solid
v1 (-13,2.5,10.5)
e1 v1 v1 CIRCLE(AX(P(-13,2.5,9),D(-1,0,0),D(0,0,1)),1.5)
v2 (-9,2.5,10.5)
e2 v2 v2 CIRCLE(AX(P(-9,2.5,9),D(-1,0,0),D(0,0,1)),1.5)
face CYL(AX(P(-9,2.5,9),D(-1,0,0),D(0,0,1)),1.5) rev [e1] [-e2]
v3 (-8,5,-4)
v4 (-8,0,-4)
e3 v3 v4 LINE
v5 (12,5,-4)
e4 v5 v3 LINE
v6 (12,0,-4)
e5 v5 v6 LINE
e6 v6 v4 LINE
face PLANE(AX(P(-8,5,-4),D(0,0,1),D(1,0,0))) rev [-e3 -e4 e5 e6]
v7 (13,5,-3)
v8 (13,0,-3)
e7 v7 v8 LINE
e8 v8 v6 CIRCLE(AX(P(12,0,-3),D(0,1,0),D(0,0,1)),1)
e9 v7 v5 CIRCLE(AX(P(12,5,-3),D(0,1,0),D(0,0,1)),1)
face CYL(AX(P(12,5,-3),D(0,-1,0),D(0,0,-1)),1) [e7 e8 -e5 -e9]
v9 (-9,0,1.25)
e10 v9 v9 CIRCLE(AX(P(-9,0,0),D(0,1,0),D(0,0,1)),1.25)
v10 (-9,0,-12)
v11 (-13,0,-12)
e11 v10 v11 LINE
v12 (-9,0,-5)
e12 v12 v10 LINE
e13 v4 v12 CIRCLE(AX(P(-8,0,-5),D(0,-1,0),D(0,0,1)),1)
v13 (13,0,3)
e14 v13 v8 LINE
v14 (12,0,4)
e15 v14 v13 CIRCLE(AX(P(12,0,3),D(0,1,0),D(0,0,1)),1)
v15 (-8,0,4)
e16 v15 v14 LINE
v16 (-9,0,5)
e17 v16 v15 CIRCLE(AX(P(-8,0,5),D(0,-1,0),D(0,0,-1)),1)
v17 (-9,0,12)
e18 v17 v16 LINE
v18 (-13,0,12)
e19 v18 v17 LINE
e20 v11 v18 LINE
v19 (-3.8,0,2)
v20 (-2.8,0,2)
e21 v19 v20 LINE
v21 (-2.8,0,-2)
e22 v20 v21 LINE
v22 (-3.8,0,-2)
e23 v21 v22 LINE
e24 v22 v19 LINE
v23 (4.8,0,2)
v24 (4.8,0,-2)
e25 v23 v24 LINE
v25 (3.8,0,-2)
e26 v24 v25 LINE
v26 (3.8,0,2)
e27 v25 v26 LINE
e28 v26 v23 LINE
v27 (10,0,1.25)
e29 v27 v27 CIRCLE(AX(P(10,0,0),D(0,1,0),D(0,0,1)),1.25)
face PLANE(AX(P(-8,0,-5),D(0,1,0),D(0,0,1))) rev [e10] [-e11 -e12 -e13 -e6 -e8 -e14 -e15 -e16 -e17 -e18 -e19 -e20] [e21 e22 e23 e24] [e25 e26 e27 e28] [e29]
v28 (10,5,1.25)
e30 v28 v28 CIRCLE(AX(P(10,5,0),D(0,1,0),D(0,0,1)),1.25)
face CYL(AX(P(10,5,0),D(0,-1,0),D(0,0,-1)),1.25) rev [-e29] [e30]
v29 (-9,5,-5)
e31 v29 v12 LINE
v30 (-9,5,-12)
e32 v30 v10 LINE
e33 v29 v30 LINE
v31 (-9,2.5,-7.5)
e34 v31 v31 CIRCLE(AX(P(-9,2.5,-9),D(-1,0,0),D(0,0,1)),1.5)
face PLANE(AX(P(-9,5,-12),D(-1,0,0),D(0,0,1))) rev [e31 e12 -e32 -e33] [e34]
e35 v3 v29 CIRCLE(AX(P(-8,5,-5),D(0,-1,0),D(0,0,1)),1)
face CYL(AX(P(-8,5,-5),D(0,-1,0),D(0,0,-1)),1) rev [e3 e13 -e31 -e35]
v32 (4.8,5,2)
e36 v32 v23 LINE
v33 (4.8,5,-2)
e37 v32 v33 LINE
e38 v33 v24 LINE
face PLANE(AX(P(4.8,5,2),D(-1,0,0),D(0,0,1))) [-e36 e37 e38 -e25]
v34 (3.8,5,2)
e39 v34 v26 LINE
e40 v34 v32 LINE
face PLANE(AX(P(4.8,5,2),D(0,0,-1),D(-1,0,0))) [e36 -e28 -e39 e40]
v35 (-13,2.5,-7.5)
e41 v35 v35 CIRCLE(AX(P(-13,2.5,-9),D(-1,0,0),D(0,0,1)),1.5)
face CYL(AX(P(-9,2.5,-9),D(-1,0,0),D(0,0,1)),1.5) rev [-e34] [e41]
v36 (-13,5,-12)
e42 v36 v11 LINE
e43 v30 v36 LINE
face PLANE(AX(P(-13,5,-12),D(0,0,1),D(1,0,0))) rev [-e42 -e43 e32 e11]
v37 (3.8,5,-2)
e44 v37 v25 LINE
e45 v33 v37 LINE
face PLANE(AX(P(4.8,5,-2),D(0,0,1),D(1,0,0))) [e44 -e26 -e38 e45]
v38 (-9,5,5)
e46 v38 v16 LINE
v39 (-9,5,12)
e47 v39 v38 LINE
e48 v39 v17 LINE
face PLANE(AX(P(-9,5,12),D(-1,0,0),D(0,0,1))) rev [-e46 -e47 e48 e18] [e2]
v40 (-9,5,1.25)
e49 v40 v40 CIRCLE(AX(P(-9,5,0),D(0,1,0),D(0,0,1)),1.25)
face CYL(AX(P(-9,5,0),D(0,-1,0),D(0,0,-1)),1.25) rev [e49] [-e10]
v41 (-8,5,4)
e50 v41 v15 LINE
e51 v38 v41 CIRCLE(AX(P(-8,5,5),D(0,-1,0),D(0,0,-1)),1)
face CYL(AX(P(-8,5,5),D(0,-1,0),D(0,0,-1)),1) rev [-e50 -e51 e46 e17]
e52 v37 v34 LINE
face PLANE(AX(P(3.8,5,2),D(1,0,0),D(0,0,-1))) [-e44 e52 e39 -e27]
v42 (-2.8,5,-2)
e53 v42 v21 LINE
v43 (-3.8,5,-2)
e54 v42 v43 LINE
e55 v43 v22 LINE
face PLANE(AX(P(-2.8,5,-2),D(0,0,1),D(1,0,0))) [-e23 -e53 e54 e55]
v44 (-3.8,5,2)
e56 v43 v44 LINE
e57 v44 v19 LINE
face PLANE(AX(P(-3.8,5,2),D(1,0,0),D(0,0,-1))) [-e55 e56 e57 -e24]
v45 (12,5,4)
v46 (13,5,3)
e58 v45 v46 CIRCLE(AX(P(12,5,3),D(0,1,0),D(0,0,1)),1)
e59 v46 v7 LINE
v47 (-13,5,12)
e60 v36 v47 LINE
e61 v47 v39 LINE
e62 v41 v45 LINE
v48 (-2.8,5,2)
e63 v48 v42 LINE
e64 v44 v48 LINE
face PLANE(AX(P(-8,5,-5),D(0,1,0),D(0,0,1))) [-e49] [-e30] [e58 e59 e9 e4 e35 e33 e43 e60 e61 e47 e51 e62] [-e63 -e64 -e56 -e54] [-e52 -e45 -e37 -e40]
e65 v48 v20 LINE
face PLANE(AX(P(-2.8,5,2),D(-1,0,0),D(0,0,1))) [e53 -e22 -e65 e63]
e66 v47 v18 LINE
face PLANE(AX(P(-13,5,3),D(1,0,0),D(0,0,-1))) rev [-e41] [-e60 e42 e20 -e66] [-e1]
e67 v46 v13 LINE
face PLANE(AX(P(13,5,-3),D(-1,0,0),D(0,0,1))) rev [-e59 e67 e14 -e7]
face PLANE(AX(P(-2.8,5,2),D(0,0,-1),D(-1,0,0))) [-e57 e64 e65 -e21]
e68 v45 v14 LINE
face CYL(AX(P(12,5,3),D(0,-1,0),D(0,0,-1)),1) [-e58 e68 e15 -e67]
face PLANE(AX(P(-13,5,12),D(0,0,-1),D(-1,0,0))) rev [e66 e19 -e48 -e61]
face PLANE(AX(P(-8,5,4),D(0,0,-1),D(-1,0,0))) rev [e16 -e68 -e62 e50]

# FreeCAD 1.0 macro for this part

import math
import FreeCAD as App
import Part
import Sketcher

V = App.Vector

doc = App.newDocument("Part")
body = doc.addObject("PartDesign::Body", "Body")

sketch1 = body.newObject("Sketcher::SketchObject", "Sketch")
sketch1.AttachmentSupport = (doc.getObject("XZ_Plane"), [""])
sketch1.MapMode = "FlatFace"
sketch1.addGeometry([
    Part.LineSegment(V(-13, 12, 0), V(-9, 12, 0)),
    Part.LineSegment(V(-9, 12, 0), V(-9, 5, 0)),
    Part.ArcOfCircle(Part.Circle(V(-8, 5, 0), V(0, 0, 1), 1), math.radians(-180), math.radians(-90)),
    Part.LineSegment(V(-8, 4, 0), V(12, 4, 0)),
    Part.ArcOfCircle(Part.Circle(V(12, 3, 0), V(0, 0, 1), 1), math.radians(0), math.radians(90)),
    Part.LineSegment(V(13, 3, 0), V(13, -3, 0)),
    Part.ArcOfCircle(Part.Circle(V(12, -3, 0), V(0, 0, 1), 1), math.radians(-90), math.radians(0)),
    Part.LineSegment(V(12, -4, 0), V(-8, -4, 0)),
    Part.ArcOfCircle(Part.Circle(V(-8, -5, 0), V(0, 0, 1), 1), math.radians(90), math.radians(180)),
    Part.LineSegment(V(-9, -5, 0), V(-9, -12, 0)),
    Part.LineSegment(V(-9, -12, 0), V(-13, -12, 0)),
    Part.LineSegment(V(-13, -12, 0), V(-13, 12, 0)),
    Part.Circle(V(-9, 0, 0), V(0, 0, 1), 1.2),
    Part.LineSegment(V(-2.8, 2, 0), V(-3.8, 2, 0)),
    Part.LineSegment(V(-3.8, 2, 0), V(-3.8, -2, 0)),
    Part.LineSegment(V(-3.8, -2, 0), V(-2.8, -2, 0)),
    Part.LineSegment(V(-2.8, -2, 0), V(-2.8, 2, 0)),
    Part.LineSegment(V(4.8, 2, 0), V(3.8, 2, 0)),
    Part.LineSegment(V(3.8, 2, 0), V(3.8, -2, 0)),
    Part.LineSegment(V(3.8, -2, 0), V(4.8, -2, 0)),
    Part.LineSegment(V(4.8, -2, 0), V(4.8, 2, 0)),
    Part.Circle(V(10, 0, 0), V(0, 0, 1), 1.2),
], False)
sketch1.addConstraint([
    Sketcher.Constraint("Coincident", 0, 2, 1, 1),
    Sketcher.Constraint("Tangent", 1, 2, 2, 1),
    Sketcher.Constraint("Tangent", 2, 2, 3, 1),
    Sketcher.Constraint("Tangent", 3, 2, 4, 2),
    Sketcher.Constraint("Tangent", 4, 1, 5, 1),
    Sketcher.Constraint("Tangent", 5, 2, 6, 2),
    Sketcher.Constraint("Tangent", 6, 1, 7, 1),
    Sketcher.Constraint("Tangent", 7, 2, 8, 1),
    Sketcher.Constraint("Tangent", 8, 2, 9, 1),
    Sketcher.Constraint("Coincident", 9, 2, 10, 1),
    Sketcher.Constraint("Coincident", 10, 2, 11, 1),
    Sketcher.Constraint("Coincident", 11, 2, 0, 1),
    Sketcher.Constraint("Coincident", 13, 2, 14, 1),
    Sketcher.Constraint("Coincident", 14, 2, 15, 1),
    Sketcher.Constraint("Coincident", 15, 2, 16, 1),
    Sketcher.Constraint("Coincident", 16, 2, 13, 1),
    Sketcher.Constraint("Coincident", 17, 2, 18, 1),
    Sketcher.Constraint("Coincident", 18, 2, 19, 1),
    Sketcher.Constraint("Coincident", 19, 2, 20, 1),
    Sketcher.Constraint("Coincident", 20, 2, 17, 1),
    Sketcher.Constraint("Horizontal", 0),
    Sketcher.Constraint("Vertical", 1),
    Sketcher.Constraint("Horizontal", 3),
    Sketcher.Constraint("Vertical", 5),
    Sketcher.Constraint("Horizontal", 7),
    Sketcher.Constraint("Vertical", 9),
    Sketcher.Constraint("Horizontal", 10),
    Sketcher.Constraint("Vertical", 11),
    Sketcher.Constraint("Horizontal", 13),
    Sketcher.Constraint("Vertical", 14),
    Sketcher.Constraint("Horizontal", 15),
    Sketcher.Constraint("Vertical", 16),
    Sketcher.Constraint("Horizontal", 17),
    Sketcher.Constraint("Vertical", 18),
    Sketcher.Constraint("Horizontal", 19),
    Sketcher.Constraint("Vertical", 20),
    Sketcher.Constraint("Equal", 2, 4),
    Sketcher.Constraint("Equal", 4, 6),
    Sketcher.Constraint("Equal", 6, 8),
    Sketcher.Constraint("Equal", 12, 21),
    Sketcher.Constraint("Symmetric", 14, 2, 17, 2, -1, 1),
    Sketcher.Constraint("Symmetric", 2, 3, 8, 3, -1),
    Sketcher.Constraint("PointOnObject", 12, 3, -1),
    Sketcher.Constraint("PointOnObject", 21, 3, -1),
    Sketcher.Constraint("Horizontal", 16, 2, 17, 2),
    Sketcher.Constraint("Horizontal", 15, 2, 18, 2),
    Sketcher.Constraint("Vertical", 12, 3, 0, 2),
    Sketcher.Constraint("Equal", 15, 17),
    Sketcher.Constraint("Equal", 1, 9),
    Sketcher.Constraint("Equal", 10, 14),
    Sketcher.Constraint("Radius", 2, 1.0),
    Sketcher.Constraint("Diameter", 12, 2.5),
    Sketcher.Constraint("DistanceX", 0, 1, 0, 2, 4.0),
    Sketcher.Constraint("DistanceX", 3, 1, 3, 2, 20.0),
    Sketcher.Constraint("DistanceX", 13, 2, 13, 1, 1.0),
    Sketcher.Constraint("DistanceY", 1, 2, 1, 1, 7.0),
    Sketcher.Constraint("DistanceY", 5, 2, 5, 1, 6.0),
    Sketcher.Constraint("DistanceX", 2, 3, -1, 1, 8.0),
    Sketcher.Constraint("DistanceX", -1, 1, 21, 3, 10.0),
    Sketcher.Constraint("DistanceX", 13, 2, -1, 1, 3.8),
])
pad1 = body.newObject("PartDesign::Pad", "Pad")
pad1.Profile = sketch1
pad1.Length = 5
pad1.Reversed = True

sketch2 = body.newObject("Sketcher::SketchObject", "Sketch001")
sketch2.AttachmentSupport = (doc.getObject("YZ_Plane"), [""])
sketch2.MapMode = "FlatFace"
sketch2.AttachmentOffset = App.Placement(V(0, 0, -13), App.Rotation())
sketch2.addGeometry([
    Part.Circle(V(2.5, 9, 0), V(0, 0, 1), 1.5),
    Part.Circle(V(2.5, -9, 0), V(0, 0, 1), 1.5),
], False)
sketch2.addConstraint([
    Sketcher.Constraint("Equal", 0, 1),
    Sketcher.Constraint("Symmetric", 0, 3, 1, 3, -1),
    Sketcher.Constraint("Diameter", 0, 3.0),
    Sketcher.Constraint("DistanceY", -1, 1, 0, 3, 9.0),
    Sketcher.Constraint("DistanceX", -1, 1, 0, 3, 2.5),
])
pocket1 = body.newObject("PartDesign::Pocket", "Pocket")
pocket1.Profile = sketch2
pocket1.Length = 4
pocket1.Reversed = True

doc.recompute()
